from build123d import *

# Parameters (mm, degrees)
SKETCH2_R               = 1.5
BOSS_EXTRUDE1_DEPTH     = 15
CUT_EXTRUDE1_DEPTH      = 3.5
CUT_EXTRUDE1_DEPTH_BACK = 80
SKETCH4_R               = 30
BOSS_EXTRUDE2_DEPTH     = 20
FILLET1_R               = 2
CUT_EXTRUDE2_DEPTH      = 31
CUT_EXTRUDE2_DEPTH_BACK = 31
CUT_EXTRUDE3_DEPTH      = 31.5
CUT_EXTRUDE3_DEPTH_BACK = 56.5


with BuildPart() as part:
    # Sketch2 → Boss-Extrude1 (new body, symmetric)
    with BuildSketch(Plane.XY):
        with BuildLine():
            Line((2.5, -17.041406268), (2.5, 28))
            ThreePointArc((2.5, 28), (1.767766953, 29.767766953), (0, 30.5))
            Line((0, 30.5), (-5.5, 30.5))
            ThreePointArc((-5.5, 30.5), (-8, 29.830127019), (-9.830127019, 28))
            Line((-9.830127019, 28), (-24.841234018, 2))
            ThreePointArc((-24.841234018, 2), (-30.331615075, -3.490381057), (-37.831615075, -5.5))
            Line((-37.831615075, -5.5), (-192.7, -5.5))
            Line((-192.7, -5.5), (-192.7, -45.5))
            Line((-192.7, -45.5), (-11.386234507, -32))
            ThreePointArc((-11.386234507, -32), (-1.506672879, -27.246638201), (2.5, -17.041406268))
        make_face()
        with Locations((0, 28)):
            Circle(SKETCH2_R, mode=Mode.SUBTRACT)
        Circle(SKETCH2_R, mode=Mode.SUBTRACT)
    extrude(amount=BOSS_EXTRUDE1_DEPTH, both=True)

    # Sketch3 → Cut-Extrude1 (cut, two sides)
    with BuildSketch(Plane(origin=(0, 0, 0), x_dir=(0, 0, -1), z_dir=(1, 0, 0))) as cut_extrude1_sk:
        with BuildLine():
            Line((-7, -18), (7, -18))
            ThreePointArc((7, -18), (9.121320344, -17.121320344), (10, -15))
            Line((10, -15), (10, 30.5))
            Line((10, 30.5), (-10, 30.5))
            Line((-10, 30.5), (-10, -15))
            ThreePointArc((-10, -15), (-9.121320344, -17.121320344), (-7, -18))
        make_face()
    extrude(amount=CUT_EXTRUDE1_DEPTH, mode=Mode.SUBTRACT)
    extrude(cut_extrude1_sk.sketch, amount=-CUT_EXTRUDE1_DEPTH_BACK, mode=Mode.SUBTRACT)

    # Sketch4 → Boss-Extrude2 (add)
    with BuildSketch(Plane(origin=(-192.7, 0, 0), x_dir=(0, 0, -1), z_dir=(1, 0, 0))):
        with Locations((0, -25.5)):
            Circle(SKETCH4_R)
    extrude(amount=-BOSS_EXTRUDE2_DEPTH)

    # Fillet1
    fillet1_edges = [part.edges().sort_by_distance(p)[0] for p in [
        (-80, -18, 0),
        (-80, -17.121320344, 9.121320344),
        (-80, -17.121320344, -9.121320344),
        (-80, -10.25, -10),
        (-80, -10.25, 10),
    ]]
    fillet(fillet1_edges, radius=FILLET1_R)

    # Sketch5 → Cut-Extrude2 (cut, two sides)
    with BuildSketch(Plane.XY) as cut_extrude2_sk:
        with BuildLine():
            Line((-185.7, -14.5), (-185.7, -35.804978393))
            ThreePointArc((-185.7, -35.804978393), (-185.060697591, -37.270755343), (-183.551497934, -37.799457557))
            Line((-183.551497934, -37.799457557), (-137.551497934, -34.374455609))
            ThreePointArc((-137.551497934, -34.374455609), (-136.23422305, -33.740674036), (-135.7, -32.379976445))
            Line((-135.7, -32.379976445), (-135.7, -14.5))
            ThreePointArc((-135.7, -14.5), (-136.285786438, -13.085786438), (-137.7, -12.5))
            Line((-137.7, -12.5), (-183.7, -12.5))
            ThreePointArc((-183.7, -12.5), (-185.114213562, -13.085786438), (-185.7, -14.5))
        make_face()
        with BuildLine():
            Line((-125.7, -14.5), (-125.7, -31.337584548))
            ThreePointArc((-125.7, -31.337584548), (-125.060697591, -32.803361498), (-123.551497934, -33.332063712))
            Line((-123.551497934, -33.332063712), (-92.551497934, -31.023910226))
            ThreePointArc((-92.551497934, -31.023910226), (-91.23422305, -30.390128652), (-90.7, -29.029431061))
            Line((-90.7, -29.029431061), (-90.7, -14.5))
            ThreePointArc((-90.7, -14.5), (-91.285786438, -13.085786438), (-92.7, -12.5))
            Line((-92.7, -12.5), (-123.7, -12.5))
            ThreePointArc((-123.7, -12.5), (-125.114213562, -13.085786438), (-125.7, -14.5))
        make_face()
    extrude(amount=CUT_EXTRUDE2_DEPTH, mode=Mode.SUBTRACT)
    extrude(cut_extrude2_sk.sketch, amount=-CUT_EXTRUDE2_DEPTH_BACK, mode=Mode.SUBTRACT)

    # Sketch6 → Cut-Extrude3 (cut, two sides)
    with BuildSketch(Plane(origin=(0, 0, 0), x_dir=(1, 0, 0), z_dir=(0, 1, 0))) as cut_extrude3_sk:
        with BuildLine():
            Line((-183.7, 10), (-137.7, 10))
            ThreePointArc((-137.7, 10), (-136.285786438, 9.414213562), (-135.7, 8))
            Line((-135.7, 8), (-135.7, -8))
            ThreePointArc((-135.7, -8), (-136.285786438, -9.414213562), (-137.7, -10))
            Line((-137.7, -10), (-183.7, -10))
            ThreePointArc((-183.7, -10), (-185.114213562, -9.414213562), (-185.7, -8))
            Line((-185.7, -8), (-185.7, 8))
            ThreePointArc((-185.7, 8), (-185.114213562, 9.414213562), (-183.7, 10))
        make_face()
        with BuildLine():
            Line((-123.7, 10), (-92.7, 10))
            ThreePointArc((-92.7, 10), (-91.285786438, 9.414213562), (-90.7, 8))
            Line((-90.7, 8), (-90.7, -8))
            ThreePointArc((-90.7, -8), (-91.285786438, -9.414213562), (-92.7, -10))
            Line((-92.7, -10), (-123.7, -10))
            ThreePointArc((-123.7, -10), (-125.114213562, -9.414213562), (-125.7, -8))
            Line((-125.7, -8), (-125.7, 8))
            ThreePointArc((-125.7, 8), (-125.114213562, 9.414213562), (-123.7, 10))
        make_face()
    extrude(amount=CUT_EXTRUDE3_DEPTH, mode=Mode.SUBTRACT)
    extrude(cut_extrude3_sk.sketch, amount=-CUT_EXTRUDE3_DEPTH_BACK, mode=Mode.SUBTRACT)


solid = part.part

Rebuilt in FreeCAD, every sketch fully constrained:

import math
import FreeCAD as App
import Part
import Sketcher


def edges_at(feature, points):
    """Names of the edges that pass closest to the given points."""
    edges = feature.Shape.Edges
    near = lambda p: min(range(len(edges)), key=lambda i: edges[i].distToShape(Part.Vertex(*p))[0])
    return sorted({f"Edge{near(p) + 1}" for p in points})

doc = App.newDocument("Part")
body = doc.addObject("PartDesign::Body", "Body")

# Sketch on XY plane
sketch1 = doc.addObject("Sketcher::SketchObject", "Sketch")
body.addObject(sketch1)
sketch1.AttachmentSupport = (doc.XY_Plane, [""])
sketch1.MapMode = "FlatFace"
sketch1.addGeometry([
    Part.LineSegment(App.Vector(2.5, -17.041406, 0), App.Vector(2.5, 28, 0)),  # 0
    Part.ArcOfCircle(Part.Circle(App.Vector(0, 28, 0), App.Vector(0, 0, 1), 2.5), math.radians(0), math.radians(90)),  # 1
    Part.LineSegment(App.Vector(0, 30.5, 0), App.Vector(-5.5, 30.5, 0)),  # 2
    Part.ArcOfCircle(Part.Circle(App.Vector(-5.5, 25.5, 0), App.Vector(0, 0, 1), 5), math.radians(90), math.radians(150)),  # 3
    Part.LineSegment(App.Vector(-9.830127, 28, 0), App.Vector(-24.841234, 2, 0)),  # 4
    Part.ArcOfCircle(Part.Circle(App.Vector(-37.831615, 9.5, 0), App.Vector(0, 0, 1), 15), math.radians(-90), math.radians(-30)),  # 5
    Part.LineSegment(App.Vector(-37.831615, -5.5, 0), App.Vector(-192.7, -5.5, 0)),  # 6
    Part.LineSegment(App.Vector(-192.7, -5.5, 0), App.Vector(-192.7, -45.5, 0)),  # 7
    Part.LineSegment(App.Vector(-192.7, -45.5, 0), App.Vector(-11.386235, -32, 0)),  # 8
    Part.ArcOfCircle(Part.Circle(App.Vector(-12.5, -17.041406, 0), App.Vector(0, 0, 1), 15), math.radians(-85.74181), math.radians(0)),  # 9
    Part.Circle(App.Vector(0, 0, 0), App.Vector(0, 0, 1), 1.5),  # 10
    Part.Circle(App.Vector(0, 28, 0), App.Vector(0, 0, 1), 1.5),  # 11
], False)
sketch1.addConstraint([
    Sketcher.Constraint("Tangent", 0, 2, 1, 1),
    Sketcher.Constraint("Tangent", 1, 2, 2, 1),
    Sketcher.Constraint("Tangent", 2, 2, 3, 1),
    Sketcher.Constraint("Tangent", 3, 2, 4, 1),
    Sketcher.Constraint("Tangent", 4, 2, 5, 2),
    Sketcher.Constraint("Tangent", 5, 1, 6, 1),
    Sketcher.Constraint("Coincident", 6, 2, 7, 1),
    Sketcher.Constraint("Coincident", 7, 2, 8, 1),
    Sketcher.Constraint("Tangent", 8, 2, 9, 1),
    Sketcher.Constraint("Tangent", 9, 2, 0, 1),
    Sketcher.Constraint("Vertical", 0),
    Sketcher.Constraint("Horizontal", 2),
    Sketcher.Constraint("Horizontal", 6),
    Sketcher.Constraint("Vertical", 7),
    Sketcher.Constraint("Coincident", 10, 3, -1, 1),
    Sketcher.Constraint("Coincident", 11, 3, 1, 3),
    Sketcher.Constraint("Equal", 5, 9),
    Sketcher.Constraint("Equal", 10, 11),
    Sketcher.Constraint("PointOnObject", 1, 3, -2),
    Sketcher.Constraint("Horizontal", 0, 2, 3, 2),
    Sketcher.Constraint("Diameter", 10, 3.0),
    Sketcher.Constraint("Radius", 3, 5.0),
    Sketcher.Constraint("Radius", 5, 15.0),
    Sketcher.Constraint("Radius", 1, 2.5),
    Sketcher.Constraint("DistanceY", 7, 2, 7, 1, 40.0),
    Sketcher.Constraint("DistanceX", 2, 2, 2, 1, 5.5),
    Sketcher.Constraint("DistanceY", -1, 1, 1, 3, 28.0),
    Sketcher.Constraint("DistanceY", -1, 1, 4, 2, 2.0),
    Sketcher.Constraint("DistanceY", 8, 2, -1, 1, 32.0),
    Sketcher.Constraint("DistanceX", 6, 2, -1, 1, 192.7),
])
pad1 = doc.addObject("PartDesign::Pad", "Pad")
body.addObject(pad1)
pad1.Profile = sketch1
pad1.Length = 30
pad1.Midplane = True

# Sketch on YZ plane
sketch2 = doc.addObject("Sketcher::SketchObject", "Sketch001")
body.addObject(sketch2)
sketch2.AttachmentSupport = (doc.YZ_Plane, [""])
sketch2.MapMode = "FlatFace"
sketch2.addGeometry([
    Part.LineSegment(App.Vector(-18, 7, 0), App.Vector(-18, -7, 0)),  # 0
    Part.ArcOfCircle(Part.Circle(App.Vector(-15, -7, 0), App.Vector(0, 0, 1), 3), math.radians(180), math.radians(270)),  # 1
    Part.LineSegment(App.Vector(-15, -10, 0), App.Vector(30.5, -10, 0)),  # 2
    Part.LineSegment(App.Vector(30.5, -10, 0), App.Vector(30.5, 10, 0)),  # 3
    Part.LineSegment(App.Vector(30.5, 10, 0), App.Vector(-15, 10, 0)),  # 4
    Part.ArcOfCircle(Part.Circle(App.Vector(-15, 7, 0), App.Vector(0, 0, 1), 3), math.radians(90), math.radians(180)),  # 5
], False)
sketch2.addConstraint([
    Sketcher.Constraint("Tangent", 0, 2, 1, 1),
    Sketcher.Constraint("Tangent", 1, 2, 2, 1),
    Sketcher.Constraint("Coincident", 2, 2, 3, 1),
    Sketcher.Constraint("Coincident", 3, 2, 4, 1),
    Sketcher.Constraint("Tangent", 4, 2, 5, 1),
    Sketcher.Constraint("Tangent", 5, 2, 0, 1),
    Sketcher.Constraint("Vertical", 0),
    Sketcher.Constraint("Horizontal", 2),
    Sketcher.Constraint("Vertical", 3),
    Sketcher.Constraint("Horizontal", 4),
    Sketcher.Constraint("Equal", 1, 5),
    Sketcher.Constraint("Radius", 1, 3.0),
    Sketcher.Constraint("DistanceY", 0, 2, 0, 1, 14.0),
    Sketcher.Constraint("DistanceX", 2, 1, 2, 2, 45.5),
    Sketcher.Constraint("DistanceX", 1, 3, -1, 1, 15.0),
    Sketcher.Constraint("DistanceY", 1, 3, -1, 1, 7.0),
])
pocket1 = doc.addObject("PartDesign::Pocket", "Pocket")
body.addObject(pocket1)
pocket1.Profile = sketch2
pocket1.Type = "TwoLengths"
pocket1.Length = 3.5
pocket1.Length2 = 80
pocket1.Reversed = True

# Sketch on YZ plane
sketch3 = doc.addObject("Sketcher::SketchObject", "Sketch002")
body.addObject(sketch3)
sketch3.AttachmentSupport = (doc.YZ_Plane, [""])
sketch3.MapMode = "FlatFace"
sketch3.AttachmentOffset = App.Placement(App.Vector(0, 0, -192.7), App.Rotation())
sketch3.addGeometry(Part.Circle(App.Vector(-25.5, 0, 0), App.Vector(0, 0, 1), 30), False)
sketch3.addConstraint([
    Sketcher.Constraint("PointOnObject", 0, 3, -1),
    Sketcher.Constraint("Diameter", 0, 60.0),
    Sketcher.Constraint("DistanceX", 0, 3, -1, 1, 25.5),
])
pad2 = doc.addObject("PartDesign::Pad", "Pad001")
body.addObject(pad2)
pad2.Profile = sketch3
pad2.Length = 20
pad2.Reversed = True
doc.recompute()

fillet = doc.addObject("PartDesign::Fillet", "Fillet")
body.addObject(fillet)
fillet.Base = (pad2, edges_at(pad2, [
    (-80, -18, 0),
    (-80, -17.121, 9.121),
    (-80, -17.121, -9.121),
    (-80, -10.25, -10),
    (-80, -10.25, 10),
]))
fillet.Radius = 2

# Sketch on XY plane
sketch4 = doc.addObject("Sketcher::SketchObject", "Sketch003")
body.addObject(sketch4)
sketch4.AttachmentSupport = (doc.XY_Plane, [""])
sketch4.MapMode = "FlatFace"
sketch4.addGeometry([
    Part.LineSegment(App.Vector(-185.7, -14.5, 0), App.Vector(-185.7, -35.804978, 0)),  # 0
    Part.ArcOfCircle(Part.Circle(App.Vector(-183.7, -35.804978, 0), App.Vector(0, 0, 1), 2), math.radians(180), math.radians(274.25819)),  # 1
    Part.LineSegment(App.Vector(-183.551498, -37.799458, 0), App.Vector(-137.551498, -34.374456, 0)),  # 2
    Part.ArcOfCircle(Part.Circle(App.Vector(-137.7, -32.379976, 0), App.Vector(0, 0, 1), 2), math.radians(-85.74181), math.radians(0)),  # 3
    Part.LineSegment(App.Vector(-135.7, -32.379976, 0), App.Vector(-135.7, -14.5, 0)),  # 4
    Part.ArcOfCircle(Part.Circle(App.Vector(-137.7, -14.5, 0), App.Vector(0, 0, 1), 2), math.radians(0), math.radians(90)),  # 5
    Part.LineSegment(App.Vector(-137.7, -12.5, 0), App.Vector(-183.7, -12.5, 0)),  # 6
    Part.ArcOfCircle(Part.Circle(App.Vector(-183.7, -14.5, 0), App.Vector(0, 0, 1), 2), math.radians(90), math.radians(180)),  # 7
    Part.LineSegment(App.Vector(-125.7, -14.5, 0), App.Vector(-125.7, -31.337585, 0)),  # 8
    Part.ArcOfCircle(Part.Circle(App.Vector(-123.7, -31.337585, 0), App.Vector(0, 0, 1), 2), math.radians(180), math.radians(274.25819)),  # 9
    Part.LineSegment(App.Vector(-123.551498, -33.332064, 0), App.Vector(-92.551498, -31.02391, 0)),  # 10
    Part.ArcOfCircle(Part.Circle(App.Vector(-92.7, -29.029431, 0), App.Vector(0, 0, 1), 2), math.radians(-85.74181), math.radians(0)),  # 11
    Part.LineSegment(App.Vector(-90.7, -29.029431, 0), App.Vector(-90.7, -14.5, 0)),  # 12
    Part.ArcOfCircle(Part.Circle(App.Vector(-92.7, -14.5, 0), App.Vector(0, 0, 1), 2), math.radians(0), math.radians(90)),  # 13
    Part.LineSegment(App.Vector(-92.7, -12.5, 0), App.Vector(-123.7, -12.5, 0)),  # 14
    Part.ArcOfCircle(Part.Circle(App.Vector(-123.7, -14.5, 0), App.Vector(0, 0, 1), 2), math.radians(90), math.radians(180)),  # 15
], False)
sketch4.addConstraint([
    Sketcher.Constraint("Tangent", 0, 2, 1, 1),
    Sketcher.Constraint("Tangent", 1, 2, 2, 1),
    Sketcher.Constraint("Tangent", 2, 2, 3, 1),
    Sketcher.Constraint("Tangent", 3, 2, 4, 1),
    Sketcher.Constraint("Tangent", 4, 2, 5, 1),
    Sketcher.Constraint("Tangent", 5, 2, 6, 1),
    Sketcher.Constraint("Tangent", 6, 2, 7, 1),
    Sketcher.Constraint("Tangent", 7, 2, 0, 1),
    Sketcher.Constraint("Tangent", 8, 2, 9, 1),
    Sketcher.Constraint("Tangent", 9, 2, 10, 1),
    Sketcher.Constraint("Tangent", 10, 2, 11, 1),
    Sketcher.Constraint("Tangent", 11, 2, 12, 1),
    Sketcher.Constraint("Tangent", 12, 2, 13, 1),
    Sketcher.Constraint("Tangent", 13, 2, 14, 1),
    Sketcher.Constraint("Tangent", 14, 2, 15, 1),
    Sketcher.Constraint("Tangent", 15, 2, 8, 1),
    Sketcher.Constraint("Vertical", 0),
    Sketcher.Constraint("Vertical", 4),
    Sketcher.Constraint("Horizontal", 6),
    Sketcher.Constraint("Vertical", 8),
    Sketcher.Constraint("Vertical", 12),
    Sketcher.Constraint("Horizontal", 14),
    Sketcher.Constraint("Equal", 1, 3),
    Sketcher.Constraint("Equal", 3, 5),
    Sketcher.Constraint("Equal", 5, 7),
    Sketcher.Constraint("Equal", 7, 9),
    Sketcher.Constraint("Equal", 9, 11),
    Sketcher.Constraint("Equal", 11, 13),
    Sketcher.Constraint("Equal", 13, 15),
    Sketcher.Constraint("Parallel", 2, 10),
    Sketcher.Constraint("Horizontal", 7, 3, 13, 3),
    Sketcher.Constraint("Radius", 1, 2.0),
    Sketcher.Constraint("DistanceX", 6, 2, 6, 1, 46.0),
    Sketcher.Constraint("DistanceX", 14, 2, 14, 1, 31.0),
    Sketcher.Constraint("DistanceX", 3, 3, 9, 3, 14.0),
    Sketcher.Constraint("DistanceX", 1, 3, -1, 1, 183.7),
    Sketcher.Constraint("DistanceY", 5, 3, -1, 1, 14.5),
    Sketcher.Constraint("DistanceY", 1, 3, 3, 3, 3.425002),
    Sketcher.Constraint("DistanceY", 0, 2, 0, 1, 21.304978),
    Sketcher.Constraint("DistanceY", 12, 1, 12, 2, 14.529431),
])
pocket2 = doc.addObject("PartDesign::Pocket", "Pocket001")
body.addObject(pocket2)
pocket2.Profile = sketch4
pocket2.Type = "ThroughAll"
pocket2.Midplane = True

# Sketch on XZ plane
sketch5 = doc.addObject("Sketcher::SketchObject", "Sketch004")
body.addObject(sketch5)
sketch5.AttachmentSupport = (doc.XZ_Plane, [""])
sketch5.MapMode = "FlatFace"
sketch5.addGeometry([
    Part.LineSegment(App.Vector(-137.7, -10, 0), App.Vector(-183.7, -10, 0)),  # 0
    Part.ArcOfCircle(Part.Circle(App.Vector(-183.7, -8, 0), App.Vector(0, 0, 1), 2), math.radians(-180), math.radians(-90)),  # 1
    Part.LineSegment(App.Vector(-185.7, -8, 0), App.Vector(-185.7, 8, 0)),  # 2
    Part.ArcOfCircle(Part.Circle(App.Vector(-183.7, 8, 0), App.Vector(0, 0, 1), 2), math.radians(90), math.radians(180)),  # 3
    Part.LineSegment(App.Vector(-183.7, 10, 0), App.Vector(-137.7, 10, 0)),  # 4
    Part.ArcOfCircle(Part.Circle(App.Vector(-137.7, 8, 0), App.Vector(0, 0, 1), 2), math.radians(0), math.radians(90)),  # 5
    Part.LineSegment(App.Vector(-135.7, 8, 0), App.Vector(-135.7, -8, 0)),  # 6
    Part.ArcOfCircle(Part.Circle(App.Vector(-137.7, -8, 0), App.Vector(0, 0, 1), 2), math.radians(-90), math.radians(0)),  # 7
    Part.LineSegment(App.Vector(-92.7, -10, 0), App.Vector(-123.7, -10, 0)),  # 8
    Part.ArcOfCircle(Part.Circle(App.Vector(-123.7, -8, 0), App.Vector(0, 0, 1), 2), math.radians(-180), math.radians(-90)),  # 9
    Part.LineSegment(App.Vector(-125.7, -8, 0), App.Vector(-125.7, 8, 0)),  # 10
    Part.ArcOfCircle(Part.Circle(App.Vector(-123.7, 8, 0), App.Vector(0, 0, 1), 2), math.radians(90), math.radians(180)),  # 11
    Part.LineSegment(App.Vector(-123.7, 10, 0), App.Vector(-92.7, 10, 0)),  # 12
    Part.ArcOfCircle(Part.Circle(App.Vector(-92.7, 8, 0), App.Vector(0, 0, 1), 2), math.radians(0), math.radians(90)),  # 13
    Part.LineSegment(App.Vector(-90.7, 8, 0), App.Vector(-90.7, -8, 0)),  # 14
    Part.ArcOfCircle(Part.Circle(App.Vector(-92.7, -8, 0), App.Vector(0, 0, 1), 2), math.radians(-90), math.radians(0)),  # 15
], False)
sketch5.addConstraint([
    Sketcher.Constraint("Tangent", 0, 2, 1, 2),
    Sketcher.Constraint("Tangent", 1, 1, 2, 1),
    Sketcher.Constraint("Tangent", 2, 2, 3, 2),
    Sketcher.Constraint("Tangent", 3, 1, 4, 1),
    Sketcher.Constraint("Tangent", 4, 2, 5, 2),
    Sketcher.Constraint("Tangent", 5, 1, 6, 1),
    Sketcher.Constraint("Tangent", 6, 2, 7, 2),
    Sketcher.Constraint("Tangent", 7, 1, 0, 1),
    Sketcher.Constraint("Tangent", 8, 2, 9, 2),
    Sketcher.Constraint("Tangent", 9, 1, 10, 1),
    Sketcher.Constraint("Tangent", 10, 2, 11, 2),
    Sketcher.Constraint("Tangent", 11, 1, 12, 1),
    Sketcher.Constraint("Tangent", 12, 2, 13, 2),
    Sketcher.Constraint("Tangent", 13, 1, 14, 1),
    Sketcher.Constraint("Tangent", 14, 2, 15, 2),
    Sketcher.Constraint("Tangent", 15, 1, 8, 1),
    Sketcher.Constraint("Horizontal", 0),
    Sketcher.Constraint("Vertical", 2),
    Sketcher.Constraint("Horizontal", 4),
    Sketcher.Constraint("Vertical", 6),
    Sketcher.Constraint("Horizontal", 8),
    Sketcher.Constraint("Vertical", 10),
    Sketcher.Constraint("Horizontal", 12),
    Sketcher.Constraint("Vertical", 14),
    Sketcher.Constraint("Equal", 1, 3),
    Sketcher.Constraint("Equal", 3, 5),
    Sketcher.Constraint("Equal", 5, 7),
    Sketcher.Constraint("Equal", 7, 9),
    Sketcher.Constraint("Equal", 9, 11),
    Sketcher.Constraint("Equal", 11, 13),
    Sketcher.Constraint("Equal", 13, 15),
    Sketcher.Constraint("Horizontal", 7, 3, 9, 3),
    Sketcher.Constraint("Horizontal", 5, 3, 11, 3),
    Sketcher.Constraint("Radius", 1, 2.0),
    Sketcher.Constraint("DistanceX", 0, 2, 0, 1, 46.0),
    Sketcher.Constraint("DistanceX", 8, 2, 8, 1, 31.0),
    Sketcher.Constraint("DistanceY", 2, 1, 2, 2, 16.0),
    Sketcher.Constraint("DistanceY", 1, 3, -1, 1, 8.0),
    Sketcher.Constraint("DistanceX", 7, 3, 9, 3, 14.0),
    Sketcher.Constraint("DistanceX", 1, 3, -1, 1, 183.7),
])
pocket3 = doc.addObject("PartDesign::Pocket", "Pocket002")
body.addObject(pocket3)
pocket3.Profile = sketch5
pocket3.Type = "ThroughAll"
pocket3.Midplane = True

doc.recompute()
